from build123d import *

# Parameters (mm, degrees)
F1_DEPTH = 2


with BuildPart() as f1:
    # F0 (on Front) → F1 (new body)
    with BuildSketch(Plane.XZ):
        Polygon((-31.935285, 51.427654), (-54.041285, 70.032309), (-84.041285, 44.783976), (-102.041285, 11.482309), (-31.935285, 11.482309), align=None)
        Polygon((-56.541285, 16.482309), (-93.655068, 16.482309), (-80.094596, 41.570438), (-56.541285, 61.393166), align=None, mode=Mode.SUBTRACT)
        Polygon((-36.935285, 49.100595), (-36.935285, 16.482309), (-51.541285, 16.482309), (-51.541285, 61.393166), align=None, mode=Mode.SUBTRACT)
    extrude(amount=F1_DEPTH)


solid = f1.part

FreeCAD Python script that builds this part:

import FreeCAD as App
import Part
import Sketcher
Q = App.Units.Quantity

doc = App.newDocument("Part")
body = doc.addObject("PartDesign::Body", "Body")

# Sketch on XZ plane
sketch1 = body.newObject("Sketcher::SketchObject", "Sketch")
sketch1.AttachmentSupport = (doc.getObject("XZ_Plane"), [""])
sketch1.MapMode = "FlatFace"
sketch1.addGeometry(Part.LineSegment(App.Vector(-31.935285, 51.427654, 0), App.Vector(-54.041285, 70.032309, 0)), False)
sketch1.addGeometry(Part.LineSegment(App.Vector(-54.041285, 70.032309, 0), App.Vector(-84.041285, 44.783976, 0)), False)
sketch1.addGeometry(Part.LineSegment(App.Vector(-84.041285, 44.783976, 0), App.Vector(-102.041285, 11.482309, 0)), False)
sketch1.addGeometry(Part.LineSegment(App.Vector(-102.041285, 11.482309, 0), App.Vector(-31.935285, 11.482309, 0)), False)
sketch1.addGeometry(Part.LineSegment(App.Vector(-31.935285, 11.482309, 0), App.Vector(-31.935285, 51.427654, 0)), False)
sketch1.addGeometry(Part.LineSegment(App.Vector(-56.541285, 61.393166, 0), App.Vector(-56.541285, 16.482309, 0)), False)
sketch1.addGeometry(Part.LineSegment(App.Vector(-56.541285, 16.482309, 0), App.Vector(-93.655068, 16.482309, 0)), False)
sketch1.addGeometry(Part.LineSegment(App.Vector(-93.655068, 16.482309, 0), App.Vector(-80.094596, 41.570438, 0)), False)
sketch1.addGeometry(Part.LineSegment(App.Vector(-80.094596, 41.570438, 0), App.Vector(-56.541285, 61.393166, 0)), False)
sketch1.addGeometry(Part.LineSegment(App.Vector(-51.541285, 61.393166, 0), App.Vector(-36.935285, 49.100595, 0)), False)
sketch1.addGeometry(Part.LineSegment(App.Vector(-36.935285, 49.100595, 0), App.Vector(-36.935285, 16.482309, 0)), False)
sketch1.addGeometry(Part.LineSegment(App.Vector(-36.935285, 16.482309, 0), App.Vector(-51.541285, 16.482309, 0)), False)
sketch1.addGeometry(Part.LineSegment(App.Vector(-51.541285, 16.482309, 0), App.Vector(-51.541285, 61.393166, 0)), False)
sketch1.addConstraint(Sketcher.Constraint("Coincident", 0, 2, 1, 1))
sketch1.addConstraint(Sketcher.Constraint("Coincident", 1, 2, 2, 1))
sketch1.addConstraint(Sketcher.Constraint("Coincident", 2, 2, 3, 1))
sketch1.addConstraint(Sketcher.Constraint("Coincident", 3, 2, 4, 1))
sketch1.addConstraint(Sketcher.Constraint("Coincident", 4, 2, 0, 1))
sketch1.addConstraint(Sketcher.Constraint("Coincident", 5, 2, 6, 1))
sketch1.addConstraint(Sketcher.Constraint("Coincident", 6, 2, 7, 1))
sketch1.addConstraint(Sketcher.Constraint("Coincident", 7, 2, 8, 1))
sketch1.addConstraint(Sketcher.Constraint("Coincident", 8, 2, 5, 1))
sketch1.addConstraint(Sketcher.Constraint("Coincident", 9, 2, 10, 1))
sketch1.addConstraint(Sketcher.Constraint("Coincident", 10, 2, 11, 1))
sketch1.addConstraint(Sketcher.Constraint("Coincident", 11, 2, 12, 1))
sketch1.addConstraint(Sketcher.Constraint("Coincident", 12, 2, 9, 1))
sketch1.addConstraint(Sketcher.Constraint("Horizontal", 3))
sketch1.addConstraint(Sketcher.Constraint("Vertical", 4))
sketch1.addConstraint(Sketcher.Constraint("Vertical", 5))
sketch1.addConstraint(Sketcher.Constraint("Horizontal", 6))
sketch1.addConstraint(Sketcher.Constraint("Vertical", 10))
sketch1.addConstraint(Sketcher.Constraint("Horizontal", 11))
sketch1.addConstraint(Sketcher.Constraint("Vertical", 12))
sketch1.addConstraint(Sketcher.Constraint("Parallel", 2, 7))
sketch1.addConstraint(Sketcher.Constraint("Parallel", 1, 8))
sketch1.addConstraint(Sketcher.Constraint("Parallel", 0, 9))
sketch1.addConstraint(Sketcher.Constraint("Horizontal", 6, 2, 10, 2))
sketch1.addConstraint(Sketcher.Constraint("Horizontal", 8, 2, 12, 2))
sketch1.addConstraint(Sketcher.Constraint("DistanceX", 1, 2, 0, 2, Q("30 mm")))
sketch1.addConstraint(Sketcher.Constraint("DistanceX", 2, 2, 1, 2, Q("18 mm")))
sketch1.addConstraint(Sketcher.Constraint("DistanceY", 3, 2, 5, 2, Q("5 mm")))
sketch1.addConstraint(Sketcher.Constraint("DistanceX", 9, 2, 4, 2, Q("5 mm")))
sketch1.addConstraint(Sketcher.Constraint("DistanceX", 5, 2, 11, 2, Q("5 mm")))
sketch1.addConstraint(Sketcher.Constraint("DistanceX", 1, 2, 5, 2, Q("27.5 mm")))
sketch1.addConstraint(Sketcher.Constraint("DistanceX", 3, 1, 3, 2, Q("70.106 mm")))
sketch1.addConstraint(Sketcher.Constraint("DistanceY", 2, 2, 0, 2, Q("58.55 mm")))
sketch1.addConstraint(Sketcher.Constraint("Distance", 2, Q("37.855 mm")))
sketch1.addConstraint(Sketcher.Constraint("Distance", 0, Q("28.893051 mm")))
sketch1.addConstraint(Sketcher.Constraint("Distance", 8, Q("30.78472 mm")))
sketch1.addConstraint(Sketcher.Constraint("DistanceX", 6, 2, 6, 1, Q("37.113783 mm")))
sketch1.addConstraint(Sketcher.Constraint("DistanceY", -1, 1, 0, 2, Q("70.032309 mm")))
sketch1.addConstraint(Sketcher.Constraint("DistanceX", 6, 2, -1, 1, Q("93.655068 mm")))
pad1 = body.newObject("PartDesign::Pad", "Pad")
pad1.Profile = sketch1
pad1.Length = 2

doc.recompute()
